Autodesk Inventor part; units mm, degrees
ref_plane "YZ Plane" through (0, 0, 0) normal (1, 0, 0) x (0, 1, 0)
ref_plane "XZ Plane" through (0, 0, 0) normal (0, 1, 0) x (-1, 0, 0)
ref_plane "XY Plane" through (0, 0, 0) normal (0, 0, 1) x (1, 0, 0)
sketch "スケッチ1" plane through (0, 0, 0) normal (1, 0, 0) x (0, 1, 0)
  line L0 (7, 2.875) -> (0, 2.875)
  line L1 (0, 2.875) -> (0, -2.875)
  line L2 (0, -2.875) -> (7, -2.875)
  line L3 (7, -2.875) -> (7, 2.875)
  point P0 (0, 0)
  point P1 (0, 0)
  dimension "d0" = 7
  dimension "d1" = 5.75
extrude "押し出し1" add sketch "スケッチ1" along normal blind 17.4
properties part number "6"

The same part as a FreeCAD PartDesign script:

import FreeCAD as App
import Part
import Sketcher


def add_polygon(sketch, points):
    """Adds a closed chain of lines whose ends are joined by coincident constraints."""
    first, n = sketch.GeometryCount, len(points)
    for a, b in zip(points, points[1:] + points[:1]):
        sketch.addGeometry(Part.LineSegment(App.Vector(*a, 0), App.Vector(*b, 0)), False)
    for i in range(n):
        sketch.addConstraint(Sketcher.Constraint("Coincident", first + i, 2, first + (i + 1) % n, 1))

doc = App.newDocument("Part")
body = doc.addObject("PartDesign::Body", "Body")

sketch1 = body.newObject("Sketcher::SketchObject", "Sketch")
sketch1.AttachmentSupport = (doc.getObject("YZ_Plane"), [""])
sketch1.MapMode = "FlatFace"
add_polygon(sketch1, [(7, -3), (7, 3), (0, 3), (0, -3)])
sketch1.addConstraint(Sketcher.Constraint("Vertical", 0))
sketch1.addConstraint(Sketcher.Constraint("Horizontal", 1))
sketch1.addConstraint(Sketcher.Constraint("Vertical", 2))
sketch1.addConstraint(Sketcher.Constraint("Horizontal", 3))
sketch1.addConstraint(Sketcher.Constraint("Symmetric", 1, 2, 2, 2, -1, 1))
sketch1.addConstraint(Sketcher.Constraint("DistanceX", 1, 2, 1, 1, 7.0))
sketch1.addConstraint(Sketcher.Constraint("DistanceY", 0, 1, 0, 2, 5.75))
pad1 = body.newObject("PartDesign::Pad", "Pad")
pad1.Profile = sketch1
pad1.Length = 17.4

doc.recompute()
